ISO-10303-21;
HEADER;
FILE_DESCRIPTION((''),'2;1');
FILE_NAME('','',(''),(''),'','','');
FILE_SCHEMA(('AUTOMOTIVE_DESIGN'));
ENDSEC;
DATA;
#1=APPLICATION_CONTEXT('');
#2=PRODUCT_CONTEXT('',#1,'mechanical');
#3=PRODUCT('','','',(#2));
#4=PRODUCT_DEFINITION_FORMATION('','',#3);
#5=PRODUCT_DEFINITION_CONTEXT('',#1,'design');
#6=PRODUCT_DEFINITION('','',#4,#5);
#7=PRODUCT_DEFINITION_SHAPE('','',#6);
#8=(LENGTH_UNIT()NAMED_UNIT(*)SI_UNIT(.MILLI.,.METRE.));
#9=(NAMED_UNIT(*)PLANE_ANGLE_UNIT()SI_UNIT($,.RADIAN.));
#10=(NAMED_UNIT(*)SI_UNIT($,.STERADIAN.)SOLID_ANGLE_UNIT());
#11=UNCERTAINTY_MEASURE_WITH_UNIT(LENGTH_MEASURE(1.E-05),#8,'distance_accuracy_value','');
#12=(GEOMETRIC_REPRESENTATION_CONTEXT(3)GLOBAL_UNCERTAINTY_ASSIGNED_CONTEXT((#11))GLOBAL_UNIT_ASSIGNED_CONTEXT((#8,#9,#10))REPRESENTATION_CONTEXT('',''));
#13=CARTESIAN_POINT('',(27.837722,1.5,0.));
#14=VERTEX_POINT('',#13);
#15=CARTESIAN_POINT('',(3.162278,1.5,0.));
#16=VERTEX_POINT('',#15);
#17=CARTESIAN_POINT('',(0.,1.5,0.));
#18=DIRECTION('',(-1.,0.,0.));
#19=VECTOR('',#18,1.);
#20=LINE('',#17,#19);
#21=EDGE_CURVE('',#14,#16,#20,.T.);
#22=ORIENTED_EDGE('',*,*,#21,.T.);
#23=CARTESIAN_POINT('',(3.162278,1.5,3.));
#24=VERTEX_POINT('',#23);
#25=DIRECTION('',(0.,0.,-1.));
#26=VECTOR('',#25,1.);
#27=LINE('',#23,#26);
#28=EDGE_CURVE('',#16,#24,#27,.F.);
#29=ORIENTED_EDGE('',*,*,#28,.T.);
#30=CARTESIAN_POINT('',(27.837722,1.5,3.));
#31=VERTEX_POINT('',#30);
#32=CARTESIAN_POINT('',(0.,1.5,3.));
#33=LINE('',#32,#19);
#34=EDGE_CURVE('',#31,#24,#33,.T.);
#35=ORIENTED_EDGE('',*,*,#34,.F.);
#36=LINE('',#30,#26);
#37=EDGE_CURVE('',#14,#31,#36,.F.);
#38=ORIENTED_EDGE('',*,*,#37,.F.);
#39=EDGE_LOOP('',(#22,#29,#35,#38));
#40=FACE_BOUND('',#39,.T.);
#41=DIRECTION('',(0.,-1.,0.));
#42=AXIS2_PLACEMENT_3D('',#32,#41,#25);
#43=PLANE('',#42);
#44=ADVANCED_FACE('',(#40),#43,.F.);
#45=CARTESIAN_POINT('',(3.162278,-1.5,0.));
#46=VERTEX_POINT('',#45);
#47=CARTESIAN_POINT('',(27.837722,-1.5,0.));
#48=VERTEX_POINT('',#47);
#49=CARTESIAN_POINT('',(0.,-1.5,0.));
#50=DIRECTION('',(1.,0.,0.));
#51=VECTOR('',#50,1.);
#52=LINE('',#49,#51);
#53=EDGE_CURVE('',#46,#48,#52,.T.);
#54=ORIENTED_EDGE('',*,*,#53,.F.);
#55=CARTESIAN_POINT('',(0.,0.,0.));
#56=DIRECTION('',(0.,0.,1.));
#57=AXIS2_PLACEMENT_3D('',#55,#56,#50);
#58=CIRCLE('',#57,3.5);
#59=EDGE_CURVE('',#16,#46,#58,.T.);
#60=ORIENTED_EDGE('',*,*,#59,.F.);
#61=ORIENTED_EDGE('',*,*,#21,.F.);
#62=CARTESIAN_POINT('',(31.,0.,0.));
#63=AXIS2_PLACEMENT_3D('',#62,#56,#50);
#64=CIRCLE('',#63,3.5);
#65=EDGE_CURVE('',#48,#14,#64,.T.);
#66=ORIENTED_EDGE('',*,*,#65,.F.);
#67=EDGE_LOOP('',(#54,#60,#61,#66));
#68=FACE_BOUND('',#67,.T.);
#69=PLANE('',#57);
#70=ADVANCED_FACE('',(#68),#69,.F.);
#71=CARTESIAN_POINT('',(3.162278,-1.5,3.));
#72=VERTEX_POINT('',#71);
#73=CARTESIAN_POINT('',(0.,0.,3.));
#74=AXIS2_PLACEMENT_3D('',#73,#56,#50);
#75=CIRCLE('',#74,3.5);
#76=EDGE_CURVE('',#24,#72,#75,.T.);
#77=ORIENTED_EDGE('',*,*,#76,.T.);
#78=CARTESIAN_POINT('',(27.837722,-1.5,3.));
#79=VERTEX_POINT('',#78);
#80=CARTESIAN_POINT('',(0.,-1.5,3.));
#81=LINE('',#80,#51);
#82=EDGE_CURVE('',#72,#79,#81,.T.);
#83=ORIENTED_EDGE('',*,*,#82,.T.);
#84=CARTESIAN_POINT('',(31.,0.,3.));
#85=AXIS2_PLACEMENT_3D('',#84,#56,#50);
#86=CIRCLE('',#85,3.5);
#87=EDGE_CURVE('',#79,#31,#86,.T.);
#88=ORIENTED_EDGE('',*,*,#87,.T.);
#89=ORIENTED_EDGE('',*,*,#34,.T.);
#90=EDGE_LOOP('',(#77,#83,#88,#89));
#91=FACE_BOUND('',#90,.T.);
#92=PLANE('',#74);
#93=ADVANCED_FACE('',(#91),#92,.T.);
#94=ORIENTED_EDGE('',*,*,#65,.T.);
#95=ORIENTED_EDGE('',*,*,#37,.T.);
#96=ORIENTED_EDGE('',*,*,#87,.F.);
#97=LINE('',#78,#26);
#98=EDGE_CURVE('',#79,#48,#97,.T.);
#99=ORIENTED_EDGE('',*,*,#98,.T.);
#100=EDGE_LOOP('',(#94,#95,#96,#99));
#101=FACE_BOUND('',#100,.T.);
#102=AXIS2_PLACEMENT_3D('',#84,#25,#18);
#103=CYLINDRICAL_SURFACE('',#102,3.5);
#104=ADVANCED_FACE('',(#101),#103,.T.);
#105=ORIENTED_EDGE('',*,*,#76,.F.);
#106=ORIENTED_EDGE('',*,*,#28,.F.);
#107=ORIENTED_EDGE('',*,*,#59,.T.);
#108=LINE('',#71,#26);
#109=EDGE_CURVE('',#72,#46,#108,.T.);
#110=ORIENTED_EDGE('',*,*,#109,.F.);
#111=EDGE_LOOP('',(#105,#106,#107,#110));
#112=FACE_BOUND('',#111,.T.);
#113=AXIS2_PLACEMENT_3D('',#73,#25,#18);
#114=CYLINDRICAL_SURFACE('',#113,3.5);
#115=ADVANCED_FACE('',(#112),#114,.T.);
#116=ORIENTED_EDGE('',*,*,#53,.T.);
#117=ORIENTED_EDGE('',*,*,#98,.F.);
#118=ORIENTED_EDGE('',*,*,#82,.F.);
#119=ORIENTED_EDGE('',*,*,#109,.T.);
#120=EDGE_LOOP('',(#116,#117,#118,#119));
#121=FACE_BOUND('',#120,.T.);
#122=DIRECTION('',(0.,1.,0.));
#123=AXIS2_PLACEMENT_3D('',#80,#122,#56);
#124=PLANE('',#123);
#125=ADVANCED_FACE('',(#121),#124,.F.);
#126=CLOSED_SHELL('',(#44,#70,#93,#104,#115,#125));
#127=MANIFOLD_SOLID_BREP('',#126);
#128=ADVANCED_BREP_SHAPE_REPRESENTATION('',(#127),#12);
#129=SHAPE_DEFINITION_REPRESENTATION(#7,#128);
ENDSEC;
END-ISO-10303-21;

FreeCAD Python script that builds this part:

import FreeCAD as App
import Part
import Sketcher
from FreeCAD import Vector
Q = App.Units.Quantity


def add_polygon(sketch, points):
    """Adds a closed chain of lines whose ends are joined by coincident constraints."""
    first, n = sketch.GeometryCount, len(points)
    for a, b in zip(points, points[1:] + points[:1]):
        sketch.addGeometry(Part.LineSegment(App.Vector(*a, 0), App.Vector(*b, 0)), False)
    for i in range(n):
        sketch.addConstraint(Sketcher.Constraint("Coincident", first + i, 2, first + (i + 1) % n, 1))

doc = App.newDocument("Part")
body = doc.addObject("PartDesign::Body", "Body")

# Sketch on XY plane
sketch1 = body.newObject("Sketcher::SketchObject", "Sketch")
sketch1.AttachmentSupport = (doc.getObject("XY_Plane"), [""])
sketch1.MapMode = "FlatFace"
sketch1.addGeometry(Part.Circle(Vector(0, 0, 0), Vector(0, 0, 1), 3.5), False)
sketch1.addConstraint([
    Sketcher.Constraint("Coincident", 0, 3, -1, 1),
    Sketcher.Constraint("Diameter", 0, Q("7 mm")),
])
pad1 = body.newObject("PartDesign::Pad", "Pad")
pad1.Profile = sketch1
pad1.Length = 3
body2 = doc.addObject("PartDesign::Body", "Body001")

# Sketch on XY plane
sketch2 = body2.newObject("Sketcher::SketchObject", "Sketch001")
sketch2.AttachmentSupport = (doc.getObject("XY_Plane001"), [""])
sketch2.MapMode = "FlatFace"
sketch2.addGeometry(Part.Circle(Vector(31, 0, 0), Vector(0, 0, 1), 3.5), False)
sketch2.addConstraint([
    Sketcher.Constraint("PointOnObject", 0, 3, -1),
    Sketcher.Constraint("Diameter", 0, Q("7 mm")),
    Sketcher.Constraint("DistanceX", -1, 1, 0, 3, Q("31 mm")),
])
pad2 = body2.newObject("PartDesign::Pad", "Pad001")
pad2.Profile = sketch2
pad2.Length = 3
body.AllowCompound = True
doc.recompute()

boolean = body.newObject("PartDesign::Boolean", "Boolean")
boolean.Type = "Fuse"
boolean.addObjects([body2])

# Sketch on XY plane
sketch3 = body.newObject("Sketcher::SketchObject", "Sketch002")
sketch3.AttachmentSupport = (doc.getObject("XY_Plane"), [""])
sketch3.MapMode = "FlatFace"
add_polygon(sketch3, [(0, 1.5), (0, -1.5), (31, -1.5), (31, 1.5)])  # lines 0-3
sketch3.addConstraint([
    Sketcher.Constraint("Vertical", 0),
    Sketcher.Constraint("Horizontal", 1),
    Sketcher.Constraint("Vertical", 2),
    Sketcher.Constraint("Horizontal", 3),
    Sketcher.Constraint("Symmetric", 0, 2, 3, 2, -1, 1),
    Sketcher.Constraint("DistanceX", 1, 1, 1, 2, Q("31 mm")),
    Sketcher.Constraint("DistanceY", 0, 2, 0, 1, Q("3 mm")),
])
pad3 = body.newObject("PartDesign::Pad", "Pad002")
pad3.Profile = sketch3
pad3.Length = 3

doc.recompute()
